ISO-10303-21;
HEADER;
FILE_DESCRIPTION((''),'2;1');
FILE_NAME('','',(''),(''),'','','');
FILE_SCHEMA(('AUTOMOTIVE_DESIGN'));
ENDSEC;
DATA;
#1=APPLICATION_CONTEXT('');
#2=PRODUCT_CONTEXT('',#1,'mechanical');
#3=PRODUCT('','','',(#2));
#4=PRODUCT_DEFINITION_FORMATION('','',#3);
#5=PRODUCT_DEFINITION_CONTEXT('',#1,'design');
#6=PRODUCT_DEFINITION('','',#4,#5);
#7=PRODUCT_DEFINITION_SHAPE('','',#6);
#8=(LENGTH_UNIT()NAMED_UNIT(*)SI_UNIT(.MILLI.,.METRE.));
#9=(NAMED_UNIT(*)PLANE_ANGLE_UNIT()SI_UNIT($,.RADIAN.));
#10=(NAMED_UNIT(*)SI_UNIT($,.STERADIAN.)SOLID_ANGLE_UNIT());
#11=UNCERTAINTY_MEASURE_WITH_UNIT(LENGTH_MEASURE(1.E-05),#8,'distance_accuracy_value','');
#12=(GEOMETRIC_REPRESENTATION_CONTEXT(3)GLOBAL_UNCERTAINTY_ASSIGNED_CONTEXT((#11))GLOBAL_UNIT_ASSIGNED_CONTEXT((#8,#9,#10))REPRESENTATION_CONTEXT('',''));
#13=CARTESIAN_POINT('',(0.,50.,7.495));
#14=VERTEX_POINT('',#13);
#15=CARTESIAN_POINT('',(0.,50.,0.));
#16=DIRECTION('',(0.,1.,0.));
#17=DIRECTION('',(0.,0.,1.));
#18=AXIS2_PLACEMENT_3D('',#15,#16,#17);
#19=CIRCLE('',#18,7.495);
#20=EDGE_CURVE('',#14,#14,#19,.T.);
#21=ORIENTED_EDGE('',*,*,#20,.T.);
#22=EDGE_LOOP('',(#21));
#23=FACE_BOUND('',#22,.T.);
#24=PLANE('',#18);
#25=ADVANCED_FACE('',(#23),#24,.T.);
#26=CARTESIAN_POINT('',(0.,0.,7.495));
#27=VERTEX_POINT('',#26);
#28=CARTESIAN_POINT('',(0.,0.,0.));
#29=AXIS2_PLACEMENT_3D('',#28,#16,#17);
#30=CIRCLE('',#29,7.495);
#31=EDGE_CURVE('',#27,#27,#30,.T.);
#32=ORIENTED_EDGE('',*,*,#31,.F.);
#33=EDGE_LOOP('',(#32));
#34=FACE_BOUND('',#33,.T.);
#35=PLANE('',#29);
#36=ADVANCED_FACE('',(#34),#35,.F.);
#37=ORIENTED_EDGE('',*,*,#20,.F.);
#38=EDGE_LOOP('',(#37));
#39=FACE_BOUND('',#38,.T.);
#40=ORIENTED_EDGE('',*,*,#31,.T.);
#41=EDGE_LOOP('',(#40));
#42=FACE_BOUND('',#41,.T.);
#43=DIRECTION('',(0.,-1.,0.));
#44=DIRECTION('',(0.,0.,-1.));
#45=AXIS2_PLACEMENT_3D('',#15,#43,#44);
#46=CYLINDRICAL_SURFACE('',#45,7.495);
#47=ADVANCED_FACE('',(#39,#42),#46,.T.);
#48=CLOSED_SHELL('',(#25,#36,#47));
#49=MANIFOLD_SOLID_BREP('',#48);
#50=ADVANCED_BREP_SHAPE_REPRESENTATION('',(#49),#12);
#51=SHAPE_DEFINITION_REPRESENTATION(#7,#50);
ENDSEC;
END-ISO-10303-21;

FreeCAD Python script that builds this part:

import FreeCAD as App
import Part
import Sketcher
Q = App.Units.Quantity

doc = App.newDocument("Part")
body = doc.addObject("PartDesign::Body", "Body")

# Sketch on XZ plane
sketch1 = doc.addObject("Sketcher::SketchObject", "Sketch")
body.addObject(sketch1)
sketch1.AttachmentSupport = (doc.XZ_Plane, [""])
sketch1.MapMode = "FlatFace"
sketch1.addGeometry(Part.Circle(App.Vector(0, 0, 0), App.Vector(0, 0, 1), 7), False)
sketch1.addConstraint([
    Sketcher.Constraint("Coincident", 0, 3, -1, 1),
    Sketcher.Constraint("Diameter", 0, Q("14.99 mm")),
])
pad1 = doc.addObject("PartDesign::Pad", "Pad")
body.addObject(pad1)
pad1.Profile = sketch1
pad1.Length = 50
pad1.Reversed = True

doc.recompute()
